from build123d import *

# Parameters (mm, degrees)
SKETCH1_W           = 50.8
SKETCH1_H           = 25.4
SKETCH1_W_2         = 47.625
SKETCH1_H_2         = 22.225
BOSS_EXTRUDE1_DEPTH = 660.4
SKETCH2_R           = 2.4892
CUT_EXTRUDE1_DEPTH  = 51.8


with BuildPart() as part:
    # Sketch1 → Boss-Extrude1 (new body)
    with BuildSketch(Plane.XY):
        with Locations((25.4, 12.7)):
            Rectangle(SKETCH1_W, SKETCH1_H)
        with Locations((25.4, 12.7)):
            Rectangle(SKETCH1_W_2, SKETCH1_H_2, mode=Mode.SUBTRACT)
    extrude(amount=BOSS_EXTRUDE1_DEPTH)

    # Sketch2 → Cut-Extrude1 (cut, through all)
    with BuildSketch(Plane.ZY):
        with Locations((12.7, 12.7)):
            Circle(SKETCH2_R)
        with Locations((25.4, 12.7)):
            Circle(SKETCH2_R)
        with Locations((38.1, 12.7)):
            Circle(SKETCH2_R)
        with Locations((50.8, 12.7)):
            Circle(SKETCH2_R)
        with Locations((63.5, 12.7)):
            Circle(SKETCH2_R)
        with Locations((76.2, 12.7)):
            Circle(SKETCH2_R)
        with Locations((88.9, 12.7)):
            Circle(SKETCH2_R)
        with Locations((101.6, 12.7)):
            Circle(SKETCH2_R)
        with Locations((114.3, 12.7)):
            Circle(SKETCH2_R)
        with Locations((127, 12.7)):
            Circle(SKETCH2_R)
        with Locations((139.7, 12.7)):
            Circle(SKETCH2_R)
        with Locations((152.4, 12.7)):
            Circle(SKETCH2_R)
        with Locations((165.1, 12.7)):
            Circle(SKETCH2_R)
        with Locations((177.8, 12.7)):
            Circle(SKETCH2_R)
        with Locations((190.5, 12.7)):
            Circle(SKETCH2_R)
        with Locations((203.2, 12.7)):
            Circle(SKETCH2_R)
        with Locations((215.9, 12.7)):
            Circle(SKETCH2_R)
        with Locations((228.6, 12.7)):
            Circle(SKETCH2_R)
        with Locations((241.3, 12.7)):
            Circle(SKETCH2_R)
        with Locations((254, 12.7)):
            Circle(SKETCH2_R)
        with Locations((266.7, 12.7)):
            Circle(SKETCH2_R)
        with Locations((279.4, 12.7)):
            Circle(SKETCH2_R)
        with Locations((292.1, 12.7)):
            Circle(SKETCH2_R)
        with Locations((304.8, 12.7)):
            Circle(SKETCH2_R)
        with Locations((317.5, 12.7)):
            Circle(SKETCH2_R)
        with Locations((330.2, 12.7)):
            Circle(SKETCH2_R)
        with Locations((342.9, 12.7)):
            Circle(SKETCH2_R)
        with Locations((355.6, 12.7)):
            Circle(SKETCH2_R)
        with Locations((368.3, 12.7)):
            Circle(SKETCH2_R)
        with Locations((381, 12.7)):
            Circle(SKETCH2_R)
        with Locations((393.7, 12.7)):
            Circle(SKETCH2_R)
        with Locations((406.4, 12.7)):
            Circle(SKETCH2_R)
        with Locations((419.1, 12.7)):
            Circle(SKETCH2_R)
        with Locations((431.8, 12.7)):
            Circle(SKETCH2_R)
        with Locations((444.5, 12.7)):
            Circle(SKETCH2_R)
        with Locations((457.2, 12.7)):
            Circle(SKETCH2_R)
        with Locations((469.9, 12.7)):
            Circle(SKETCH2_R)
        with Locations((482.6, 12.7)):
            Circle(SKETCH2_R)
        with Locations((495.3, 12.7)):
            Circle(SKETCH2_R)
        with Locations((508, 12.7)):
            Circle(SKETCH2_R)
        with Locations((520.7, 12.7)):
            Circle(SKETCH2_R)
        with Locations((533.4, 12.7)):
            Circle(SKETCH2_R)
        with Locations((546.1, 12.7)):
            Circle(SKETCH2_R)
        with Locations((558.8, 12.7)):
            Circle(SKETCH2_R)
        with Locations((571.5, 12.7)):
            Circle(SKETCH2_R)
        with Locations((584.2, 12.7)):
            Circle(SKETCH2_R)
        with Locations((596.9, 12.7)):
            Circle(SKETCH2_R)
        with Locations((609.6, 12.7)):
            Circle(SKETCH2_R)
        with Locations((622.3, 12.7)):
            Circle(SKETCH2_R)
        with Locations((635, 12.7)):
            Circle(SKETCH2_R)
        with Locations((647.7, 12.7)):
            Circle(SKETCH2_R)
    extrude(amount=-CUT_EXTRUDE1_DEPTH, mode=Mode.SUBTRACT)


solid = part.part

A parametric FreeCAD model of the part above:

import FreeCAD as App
import Part
import Sketcher
Q = App.Units.Quantity

doc = App.newDocument("Part")
body = doc.addObject("PartDesign::Body", "Body")

# Sketch on XY plane
sketch1 = doc.addObject("Sketcher::SketchObject", "Sketch")
body.addObject(sketch1)
sketch1.AttachmentSupport = (doc.XY_Plane, [""])
sketch1.MapMode = "FlatFace"
sketch1.addGeometry([
    Part.LineSegment(App.Vector(0, 25, 0), App.Vector(0, 0, 0)),  # 0
    Part.LineSegment(App.Vector(0, 0, 0), App.Vector(51, 0, 0)),  # 1
    Part.LineSegment(App.Vector(51, 0, 0), App.Vector(51, 25, 0)),  # 2
    Part.LineSegment(App.Vector(51, 25, 0), App.Vector(0, 25, 0)),  # 3
    Part.LineSegment(App.Vector(49, 2, 0), App.Vector(2, 2, 0)),  # 4
    Part.LineSegment(App.Vector(2, 2, 0), App.Vector(2, 24, 0)),  # 5
    Part.LineSegment(App.Vector(2, 24, 0), App.Vector(49, 24, 0)),  # 6
    Part.LineSegment(App.Vector(49, 24, 0), App.Vector(49, 2, 0)),  # 7
], False)
sketch1.addConstraint([
    Sketcher.Constraint("Coincident", 0, 2, 1, 1),
    Sketcher.Constraint("Coincident", 1, 2, 2, 1),
    Sketcher.Constraint("Coincident", 2, 2, 3, 1),
    Sketcher.Constraint("Coincident", 3, 2, 0, 1),
    Sketcher.Constraint("Coincident", 4, 2, 5, 1),
    Sketcher.Constraint("Coincident", 5, 2, 6, 1),
    Sketcher.Constraint("Coincident", 6, 2, 7, 1),
    Sketcher.Constraint("Coincident", 7, 2, 4, 1),
    Sketcher.Constraint("Vertical", 0),
    Sketcher.Constraint("Horizontal", 1),
    Sketcher.Constraint("Vertical", 2),
    Sketcher.Constraint("Horizontal", 3),
    Sketcher.Constraint("Horizontal", 4),
    Sketcher.Constraint("Vertical", 5),
    Sketcher.Constraint("Horizontal", 6),
    Sketcher.Constraint("Vertical", 7),
    Sketcher.Constraint("Coincident", 0, 2, -1, 1),
    Sketcher.Constraint("DistanceX", 1, 1, 1, 2, Q("2 in")),
    Sketcher.Constraint("DistanceY", 0, 2, 0, 1, Q("1 in")),
    Sketcher.Constraint("DistanceX", 4, 2, 4, 1, Q("1.875 in")),
    Sketcher.Constraint("DistanceY", 5, 1, 5, 2, Q("0.875 in")),
    Sketcher.Constraint("DistanceX", -1, 1, 4, 2, Q("0.0625 in")),
    Sketcher.Constraint("DistanceY", -1, 1, 4, 2, Q("0.0625 in")),
])
pad1 = doc.addObject("PartDesign::Pad", "Pad")
body.addObject(pad1)
pad1.Profile = sketch1
pad1.Length = Q("26 in")

# Sketch on YZ plane
sketch2 = doc.addObject("Sketcher::SketchObject", "Sketch001")
body.addObject(sketch2)
sketch2.AttachmentSupport = (doc.YZ_Plane, [""])
sketch2.MapMode = "FlatFace"
sketch2.addGeometry([
    Part.Circle(App.Vector(12.7, 12.7, 0), App.Vector(0, 0, 1), 2.5),  # 0
    Part.Circle(App.Vector(12.7, 25.4, 0), App.Vector(0, 0, 1), 2.5),  # 1
    Part.Circle(App.Vector(12.7, 38.1, 0), App.Vector(0, 0, 1), 2.5),  # 2
    Part.Circle(App.Vector(12.7, 50.8, 0), App.Vector(0, 0, 1), 2.5),  # 3
    Part.Circle(App.Vector(12.7, 63.5, 0), App.Vector(0, 0, 1), 2.5),  # 4
    Part.Circle(App.Vector(12.7, 76.2, 0), App.Vector(0, 0, 1), 2.5),  # 5
    Part.Circle(App.Vector(12.7, 88.9, 0), App.Vector(0, 0, 1), 2.5),  # 6
    Part.Circle(App.Vector(12.7, 101.6, 0), App.Vector(0, 0, 1), 2.5),  # 7
    Part.Circle(App.Vector(12.7, 114.3, 0), App.Vector(0, 0, 1), 2.5),  # 8
    Part.Circle(App.Vector(12.7, 127, 0), App.Vector(0, 0, 1), 2.5),  # 9
    Part.Circle(App.Vector(12.7, 139.7, 0), App.Vector(0, 0, 1), 2.5),  # 10
    Part.Circle(App.Vector(12.7, 152.4, 0), App.Vector(0, 0, 1), 2.5),  # 11
    Part.Circle(App.Vector(12.7, 165.1, 0), App.Vector(0, 0, 1), 2.5),  # 12
    Part.Circle(App.Vector(12.7, 177.8, 0), App.Vector(0, 0, 1), 2.5),  # 13
    Part.Circle(App.Vector(12.7, 190.5, 0), App.Vector(0, 0, 1), 2.5),  # 14
    Part.Circle(App.Vector(12.7, 203.2, 0), App.Vector(0, 0, 1), 2.5),  # 15
    Part.Circle(App.Vector(12.7, 215.9, 0), App.Vector(0, 0, 1), 2.5),  # 16
    Part.Circle(App.Vector(12.7, 228.6, 0), App.Vector(0, 0, 1), 2.5),  # 17
    Part.Circle(App.Vector(12.7, 241.3, 0), App.Vector(0, 0, 1), 2.5),  # 18
    Part.Circle(App.Vector(12.7, 254, 0), App.Vector(0, 0, 1), 2.5),  # 19
    Part.Circle(App.Vector(12.7, 266.7, 0), App.Vector(0, 0, 1), 2.5),  # 20
    Part.Circle(App.Vector(12.7, 279.4, 0), App.Vector(0, 0, 1), 2.5),  # 21
    Part.Circle(App.Vector(12.7, 292.1, 0), App.Vector(0, 0, 1), 2.5),  # 22
    Part.Circle(App.Vector(12.7, 304.8, 0), App.Vector(0, 0, 1), 2.5),  # 23
    Part.Circle(App.Vector(12.7, 317.5, 0), App.Vector(0, 0, 1), 2.5),  # 24
    Part.Circle(App.Vector(12.7, 330.2, 0), App.Vector(0, 0, 1), 2.5),  # 25
    Part.Circle(App.Vector(12.7, 342.9, 0), App.Vector(0, 0, 1), 2.5),  # 26
    Part.Circle(App.Vector(12.7, 355.6, 0), App.Vector(0, 0, 1), 2.5),  # 27
    Part.Circle(App.Vector(12.7, 368.3, 0), App.Vector(0, 0, 1), 2.5),  # 28
    Part.Circle(App.Vector(12.7, 381, 0), App.Vector(0, 0, 1), 2.5),  # 29
    Part.Circle(App.Vector(12.7, 393.7, 0), App.Vector(0, 0, 1), 2.5),  # 30
    Part.Circle(App.Vector(12.7, 406.4, 0), App.Vector(0, 0, 1), 2.5),  # 31
    Part.Circle(App.Vector(12.7, 419.1, 0), App.Vector(0, 0, 1), 2.5),  # 32
    Part.Circle(App.Vector(12.7, 431.8, 0), App.Vector(0, 0, 1), 2.5),  # 33
    Part.Circle(App.Vector(12.7, 444.5, 0), App.Vector(0, 0, 1), 2.5),  # 34
    Part.Circle(App.Vector(12.7, 457.2, 0), App.Vector(0, 0, 1), 2.5),  # 35
    Part.Circle(App.Vector(12.7, 469.9, 0), App.Vector(0, 0, 1), 2.5),  # 36
    Part.Circle(App.Vector(12.7, 482.6, 0), App.Vector(0, 0, 1), 2.5),  # 37
    Part.Circle(App.Vector(12.7, 495.3, 0), App.Vector(0, 0, 1), 2.5),  # 38
    Part.Circle(App.Vector(12.7, 508, 0), App.Vector(0, 0, 1), 2.5),  # 39
    Part.Circle(App.Vector(12.7, 520.7, 0), App.Vector(0, 0, 1), 2.5),  # 40
    Part.Circle(App.Vector(12.7, 533.4, 0), App.Vector(0, 0, 1), 2.5),  # 41
    Part.Circle(App.Vector(12.7, 546.1, 0), App.Vector(0, 0, 1), 2.5),  # 42
    Part.Circle(App.Vector(12.7, 558.8, 0), App.Vector(0, 0, 1), 2.5),  # 43
    Part.Circle(App.Vector(12.7, 571.5, 0), App.Vector(0, 0, 1), 2.5),  # 44
    Part.Circle(App.Vector(12.7, 584.2, 0), App.Vector(0, 0, 1), 2.5),  # 45
    Part.Circle(App.Vector(12.7, 596.9, 0), App.Vector(0, 0, 1), 2.5),  # 46
    Part.Circle(App.Vector(12.7, 609.6, 0), App.Vector(0, 0, 1), 2.5),  # 47
    Part.Circle(App.Vector(12.7, 622.3, 0), App.Vector(0, 0, 1), 2.5),  # 48
    Part.Circle(App.Vector(12.7, 635, 0), App.Vector(0, 0, 1), 2.5),  # 49
    Part.Circle(App.Vector(12.7, 647.7, 0), App.Vector(0, 0, 1), 2.5),  # 50
], False)
sketch2.addConstraint([
    Sketcher.Constraint("Equal", 0, 1),
    Sketcher.Constraint("Equal", 1, 2),
    Sketcher.Constraint("Equal", 2, 3),
    Sketcher.Constraint("Equal", 3, 4),
    Sketcher.Constraint("Equal", 4, 5),
    Sketcher.Constraint("Equal", 5, 6),
    Sketcher.Constraint("Equal", 6, 7),
    Sketcher.Constraint("Equal", 7, 8),
    Sketcher.Constraint("Equal", 8, 9),
    Sketcher.Constraint("Equal", 9, 10),
    Sketcher.Constraint("Equal", 10, 11),
    Sketcher.Constraint("Equal", 11, 12),
    Sketcher.Constraint("Equal", 12, 13),
    Sketcher.Constraint("Equal", 13, 14),
    Sketcher.Constraint("Equal", 14, 15),
    Sketcher.Constraint("Equal", 15, 16),
    Sketcher.Constraint("Equal", 16, 17),
    Sketcher.Constraint("Equal", 17, 18),
    Sketcher.Constraint("Equal", 18, 19),
    Sketcher.Constraint("Equal", 19, 20),
    Sketcher.Constraint("Equal", 20, 21),
    Sketcher.Constraint("Equal", 21, 22),
    Sketcher.Constraint("Equal", 22, 23),
    Sketcher.Constraint("Equal", 23, 24),
    Sketcher.Constraint("Equal", 24, 25),
    Sketcher.Constraint("Equal", 25, 26),
    Sketcher.Constraint("Equal", 26, 27),
    Sketcher.Constraint("Equal", 27, 28),
    Sketcher.Constraint("Equal", 28, 29),
    Sketcher.Constraint("Equal", 29, 30),
    Sketcher.Constraint("Equal", 30, 31),
    Sketcher.Constraint("Equal", 31, 32),
    Sketcher.Constraint("Equal", 32, 33),
    Sketcher.Constraint("Equal", 33, 34),
    Sketcher.Constraint("Equal", 34, 35),
    Sketcher.Constraint("Equal", 35, 36),
    Sketcher.Constraint("Equal", 36, 37),
    Sketcher.Constraint("Equal", 37, 38),
    Sketcher.Constraint("Equal", 38, 39),
    Sketcher.Constraint("Equal", 39, 40),
    Sketcher.Constraint("Equal", 40, 41),
    Sketcher.Constraint("Equal", 41, 42),
    Sketcher.Constraint("Equal", 42, 43),
    Sketcher.Constraint("Equal", 43, 44),
    Sketcher.Constraint("Equal", 44, 45),
    Sketcher.Constraint("Equal", 45, 46),
    Sketcher.Constraint("Equal", 46, 47),
    Sketcher.Constraint("Equal", 47, 48),
    Sketcher.Constraint("Equal", 48, 49),
    Sketcher.Constraint("Equal", 49, 50),
    Sketcher.Constraint("Vertical", 0, 3, 1, 3),
    Sketcher.Constraint("Vertical", 1, 3, 2, 3),
    Sketcher.Constraint("Vertical", 2, 3, 3, 3),
    Sketcher.Constraint("Vertical", 3, 3, 4, 3),
    Sketcher.Constraint("Vertical", 4, 3, 5, 3),
    Sketcher.Constraint("Vertical", 5, 3, 6, 3),
    Sketcher.Constraint("Vertical", 6, 3, 7, 3),
    Sketcher.Constraint("Vertical", 7, 3, 8, 3),
    Sketcher.Constraint("Vertical", 8, 3, 9, 3),
    Sketcher.Constraint("Vertical", 9, 3, 10, 3),
    Sketcher.Constraint("Vertical", 10, 3, 11, 3),
    Sketcher.Constraint("Vertical", 11, 3, 12, 3),
    Sketcher.Constraint("Vertical", 12, 3, 13, 3),
    Sketcher.Constraint("Vertical", 13, 3, 14, 3),
    Sketcher.Constraint("Vertical", 14, 3, 15, 3),
    Sketcher.Constraint("Vertical", 15, 3, 16, 3),
    Sketcher.Constraint("Vertical", 16, 3, 17, 3),
    Sketcher.Constraint("Vertical", 17, 3, 18, 3),
    Sketcher.Constraint("Vertical", 18, 3, 19, 3),
    Sketcher.Constraint("Vertical", 19, 3, 20, 3),
    Sketcher.Constraint("Vertical", 20, 3, 21, 3),
    Sketcher.Constraint("Vertical", 21, 3, 22, 3),
    Sketcher.Constraint("Vertical", 22, 3, 23, 3),
    Sketcher.Constraint("Vertical", 23, 3, 24, 3),
    Sketcher.Constraint("Vertical", 24, 3, 25, 3),
    Sketcher.Constraint("Vertical", 25, 3, 26, 3),
    Sketcher.Constraint("Vertical", 26, 3, 27, 3),
    Sketcher.Constraint("Vertical", 27, 3, 28, 3),
    Sketcher.Constraint("Vertical", 28, 3, 29, 3),
    Sketcher.Constraint("Vertical", 29, 3, 30, 3),
    Sketcher.Constraint("Vertical", 30, 3, 31, 3),
    Sketcher.Constraint("Vertical", 31, 3, 32, 3),
    Sketcher.Constraint("Vertical", 32, 3, 33, 3),
    Sketcher.Constraint("Vertical", 33, 3, 34, 3),
    Sketcher.Constraint("Vertical", 34, 3, 35, 3),
    Sketcher.Constraint("Vertical", 35, 3, 36, 3),
    Sketcher.Constraint("Vertical", 36, 3, 37, 3),
    Sketcher.Constraint("Vertical", 37, 3, 38, 3),
    Sketcher.Constraint("Vertical", 38, 3, 39, 3),
    Sketcher.Constraint("Vertical", 39, 3, 40, 3),
    Sketcher.Constraint("Vertical", 40, 3, 41, 3),
    Sketcher.Constraint("Vertical", 41, 3, 42, 3),
    Sketcher.Constraint("Vertical", 42, 3, 43, 3),
    Sketcher.Constraint("Vertical", 43, 3, 44, 3),
    Sketcher.Constraint("Vertical", 44, 3, 45, 3),
    Sketcher.Constraint("Vertical", 45, 3, 46, 3),
    Sketcher.Constraint("Vertical", 46, 3, 47, 3),
    Sketcher.Constraint("Vertical", 47, 3, 48, 3),
    Sketcher.Constraint("Vertical", 48, 3, 49, 3),
    Sketcher.Constraint("Vertical", 49, 3, 50, 3),
    Sketcher.Constraint("Diameter", 0, Q("0.196 in")),
    Sketcher.Constraint("DistanceY", -1, 1, 1, 3, Q("1 in")),
    Sketcher.Constraint("DistanceY", -1, 1, 3, 3, Q("2 in")),
    Sketcher.Constraint("DistanceY", -1, 1, 5, 3, Q("3 in")),
    Sketcher.Constraint("DistanceY", -1, 1, 7, 3, Q("4 in")),
    Sketcher.Constraint("DistanceY", -1, 1, 9, 3, Q("5 in")),
    Sketcher.Constraint("DistanceY", -1, 1, 11, 3, Q("6 in")),
    Sketcher.Constraint("DistanceY", -1, 1, 13, 3, Q("7 in")),
    Sketcher.Constraint("DistanceY", -1, 1, 15, 3, Q("8 in")),
    Sketcher.Constraint("DistanceY", -1, 1, 17, 3, Q("9 in")),
    Sketcher.Constraint("DistanceY", -1, 1, 19, 3, Q("10 in")),
    Sketcher.Constraint("DistanceY", -1, 1, 21, 3, Q("11 in")),
    Sketcher.Constraint("DistanceY", -1, 1, 23, 3, Q("12 in")),
    Sketcher.Constraint("DistanceY", -1, 1, 25, 3, Q("13 in")),
    Sketcher.Constraint("DistanceY", -1, 1, 27, 3, Q("14 in")),
    Sketcher.Constraint("DistanceY", -1, 1, 29, 3, Q("15 in")),
    Sketcher.Constraint("DistanceY", -1, 1, 31, 3, Q("16 in")),
    Sketcher.Constraint("DistanceY", -1, 1, 33, 3, Q("17 in")),
    Sketcher.Constraint("DistanceY", -1, 1, 35, 3, Q("18 in")),
    Sketcher.Constraint("DistanceY", -1, 1, 37, 3, Q("19 in")),
    Sketcher.Constraint("DistanceY", -1, 1, 39, 3, Q("20 in")),
    Sketcher.Constraint("DistanceY", -1, 1, 41, 3, Q("21 in")),
    Sketcher.Constraint("DistanceY", -1, 1, 43, 3, Q("22 in")),
    Sketcher.Constraint("DistanceY", -1, 1, 45, 3, Q("23 in")),
    Sketcher.Constraint("DistanceY", -1, 1, 47, 3, Q("24 in")),
    Sketcher.Constraint("DistanceY", -1, 1, 49, 3, Q("25 in")),
    Sketcher.Constraint("DistanceY", 0, 3, 2, 3, Q("1 in")),
    Sketcher.Constraint("DistanceY", 2, 3, 4, 3, Q("1 in")),
    Sketcher.Constraint("DistanceY", 4, 3, 6, 3, Q("1 in")),
    Sketcher.Constraint("DistanceY", 6, 3, 8, 3, Q("1 in")),
    Sketcher.Constraint("DistanceY", 8, 3, 10, 3, Q("1 in")),
    Sketcher.Constraint("DistanceY", 10, 3, 12, 3, Q("1 in")),
    Sketcher.Constraint("DistanceY", 12, 3, 14, 3, Q("1 in")),
    Sketcher.Constraint("DistanceY", 14, 3, 16, 3, Q("1 in")),
    Sketcher.Constraint("DistanceY", 16, 3, 18, 3, Q("1 in")),
    Sketcher.Constraint("DistanceY", 18, 3, 20, 3, Q("1 in")),
    Sketcher.Constraint("DistanceY", 20, 3, 22, 3, Q("1 in")),
    Sketcher.Constraint("DistanceY", 22, 3, 24, 3, Q("1 in")),
    Sketcher.Constraint("DistanceY", 24, 3, 26, 3, Q("1 in")),
    Sketcher.Constraint("DistanceY", 26, 3, 28, 3, Q("1 in")),
    Sketcher.Constraint("DistanceY", 28, 3, 30, 3, Q("1 in")),
    Sketcher.Constraint("DistanceY", 30, 3, 32, 3, Q("1 in")),
    Sketcher.Constraint("DistanceY", 32, 3, 34, 3, Q("1 in")),
    Sketcher.Constraint("DistanceY", 34, 3, 36, 3, Q("1 in")),
    Sketcher.Constraint("DistanceY", 36, 3, 38, 3, Q("1 in")),
    Sketcher.Constraint("DistanceY", 38, 3, 40, 3, Q("1 in")),
    Sketcher.Constraint("DistanceY", 40, 3, 42, 3, Q("1 in")),
    Sketcher.Constraint("DistanceY", 42, 3, 44, 3, Q("1 in")),
    Sketcher.Constraint("DistanceY", 44, 3, 46, 3, Q("1 in")),
    Sketcher.Constraint("DistanceY", 46, 3, 48, 3, Q("1 in")),
    Sketcher.Constraint("DistanceY", 48, 3, 50, 3, Q("1 in")),
    Sketcher.Constraint("DistanceX", -1, 1, 0, 3, Q("0.5 in")),
    Sketcher.Constraint("DistanceY", -1, 1, 0, 3, Q("0.5 in")),
])
pocket1 = doc.addObject("PartDesign::Pocket", "Pocket")
body.addObject(pocket1)
pocket1.Profile = sketch2
pocket1.Type = "ThroughAll"
pocket1.Reversed = True

doc.recompute()
